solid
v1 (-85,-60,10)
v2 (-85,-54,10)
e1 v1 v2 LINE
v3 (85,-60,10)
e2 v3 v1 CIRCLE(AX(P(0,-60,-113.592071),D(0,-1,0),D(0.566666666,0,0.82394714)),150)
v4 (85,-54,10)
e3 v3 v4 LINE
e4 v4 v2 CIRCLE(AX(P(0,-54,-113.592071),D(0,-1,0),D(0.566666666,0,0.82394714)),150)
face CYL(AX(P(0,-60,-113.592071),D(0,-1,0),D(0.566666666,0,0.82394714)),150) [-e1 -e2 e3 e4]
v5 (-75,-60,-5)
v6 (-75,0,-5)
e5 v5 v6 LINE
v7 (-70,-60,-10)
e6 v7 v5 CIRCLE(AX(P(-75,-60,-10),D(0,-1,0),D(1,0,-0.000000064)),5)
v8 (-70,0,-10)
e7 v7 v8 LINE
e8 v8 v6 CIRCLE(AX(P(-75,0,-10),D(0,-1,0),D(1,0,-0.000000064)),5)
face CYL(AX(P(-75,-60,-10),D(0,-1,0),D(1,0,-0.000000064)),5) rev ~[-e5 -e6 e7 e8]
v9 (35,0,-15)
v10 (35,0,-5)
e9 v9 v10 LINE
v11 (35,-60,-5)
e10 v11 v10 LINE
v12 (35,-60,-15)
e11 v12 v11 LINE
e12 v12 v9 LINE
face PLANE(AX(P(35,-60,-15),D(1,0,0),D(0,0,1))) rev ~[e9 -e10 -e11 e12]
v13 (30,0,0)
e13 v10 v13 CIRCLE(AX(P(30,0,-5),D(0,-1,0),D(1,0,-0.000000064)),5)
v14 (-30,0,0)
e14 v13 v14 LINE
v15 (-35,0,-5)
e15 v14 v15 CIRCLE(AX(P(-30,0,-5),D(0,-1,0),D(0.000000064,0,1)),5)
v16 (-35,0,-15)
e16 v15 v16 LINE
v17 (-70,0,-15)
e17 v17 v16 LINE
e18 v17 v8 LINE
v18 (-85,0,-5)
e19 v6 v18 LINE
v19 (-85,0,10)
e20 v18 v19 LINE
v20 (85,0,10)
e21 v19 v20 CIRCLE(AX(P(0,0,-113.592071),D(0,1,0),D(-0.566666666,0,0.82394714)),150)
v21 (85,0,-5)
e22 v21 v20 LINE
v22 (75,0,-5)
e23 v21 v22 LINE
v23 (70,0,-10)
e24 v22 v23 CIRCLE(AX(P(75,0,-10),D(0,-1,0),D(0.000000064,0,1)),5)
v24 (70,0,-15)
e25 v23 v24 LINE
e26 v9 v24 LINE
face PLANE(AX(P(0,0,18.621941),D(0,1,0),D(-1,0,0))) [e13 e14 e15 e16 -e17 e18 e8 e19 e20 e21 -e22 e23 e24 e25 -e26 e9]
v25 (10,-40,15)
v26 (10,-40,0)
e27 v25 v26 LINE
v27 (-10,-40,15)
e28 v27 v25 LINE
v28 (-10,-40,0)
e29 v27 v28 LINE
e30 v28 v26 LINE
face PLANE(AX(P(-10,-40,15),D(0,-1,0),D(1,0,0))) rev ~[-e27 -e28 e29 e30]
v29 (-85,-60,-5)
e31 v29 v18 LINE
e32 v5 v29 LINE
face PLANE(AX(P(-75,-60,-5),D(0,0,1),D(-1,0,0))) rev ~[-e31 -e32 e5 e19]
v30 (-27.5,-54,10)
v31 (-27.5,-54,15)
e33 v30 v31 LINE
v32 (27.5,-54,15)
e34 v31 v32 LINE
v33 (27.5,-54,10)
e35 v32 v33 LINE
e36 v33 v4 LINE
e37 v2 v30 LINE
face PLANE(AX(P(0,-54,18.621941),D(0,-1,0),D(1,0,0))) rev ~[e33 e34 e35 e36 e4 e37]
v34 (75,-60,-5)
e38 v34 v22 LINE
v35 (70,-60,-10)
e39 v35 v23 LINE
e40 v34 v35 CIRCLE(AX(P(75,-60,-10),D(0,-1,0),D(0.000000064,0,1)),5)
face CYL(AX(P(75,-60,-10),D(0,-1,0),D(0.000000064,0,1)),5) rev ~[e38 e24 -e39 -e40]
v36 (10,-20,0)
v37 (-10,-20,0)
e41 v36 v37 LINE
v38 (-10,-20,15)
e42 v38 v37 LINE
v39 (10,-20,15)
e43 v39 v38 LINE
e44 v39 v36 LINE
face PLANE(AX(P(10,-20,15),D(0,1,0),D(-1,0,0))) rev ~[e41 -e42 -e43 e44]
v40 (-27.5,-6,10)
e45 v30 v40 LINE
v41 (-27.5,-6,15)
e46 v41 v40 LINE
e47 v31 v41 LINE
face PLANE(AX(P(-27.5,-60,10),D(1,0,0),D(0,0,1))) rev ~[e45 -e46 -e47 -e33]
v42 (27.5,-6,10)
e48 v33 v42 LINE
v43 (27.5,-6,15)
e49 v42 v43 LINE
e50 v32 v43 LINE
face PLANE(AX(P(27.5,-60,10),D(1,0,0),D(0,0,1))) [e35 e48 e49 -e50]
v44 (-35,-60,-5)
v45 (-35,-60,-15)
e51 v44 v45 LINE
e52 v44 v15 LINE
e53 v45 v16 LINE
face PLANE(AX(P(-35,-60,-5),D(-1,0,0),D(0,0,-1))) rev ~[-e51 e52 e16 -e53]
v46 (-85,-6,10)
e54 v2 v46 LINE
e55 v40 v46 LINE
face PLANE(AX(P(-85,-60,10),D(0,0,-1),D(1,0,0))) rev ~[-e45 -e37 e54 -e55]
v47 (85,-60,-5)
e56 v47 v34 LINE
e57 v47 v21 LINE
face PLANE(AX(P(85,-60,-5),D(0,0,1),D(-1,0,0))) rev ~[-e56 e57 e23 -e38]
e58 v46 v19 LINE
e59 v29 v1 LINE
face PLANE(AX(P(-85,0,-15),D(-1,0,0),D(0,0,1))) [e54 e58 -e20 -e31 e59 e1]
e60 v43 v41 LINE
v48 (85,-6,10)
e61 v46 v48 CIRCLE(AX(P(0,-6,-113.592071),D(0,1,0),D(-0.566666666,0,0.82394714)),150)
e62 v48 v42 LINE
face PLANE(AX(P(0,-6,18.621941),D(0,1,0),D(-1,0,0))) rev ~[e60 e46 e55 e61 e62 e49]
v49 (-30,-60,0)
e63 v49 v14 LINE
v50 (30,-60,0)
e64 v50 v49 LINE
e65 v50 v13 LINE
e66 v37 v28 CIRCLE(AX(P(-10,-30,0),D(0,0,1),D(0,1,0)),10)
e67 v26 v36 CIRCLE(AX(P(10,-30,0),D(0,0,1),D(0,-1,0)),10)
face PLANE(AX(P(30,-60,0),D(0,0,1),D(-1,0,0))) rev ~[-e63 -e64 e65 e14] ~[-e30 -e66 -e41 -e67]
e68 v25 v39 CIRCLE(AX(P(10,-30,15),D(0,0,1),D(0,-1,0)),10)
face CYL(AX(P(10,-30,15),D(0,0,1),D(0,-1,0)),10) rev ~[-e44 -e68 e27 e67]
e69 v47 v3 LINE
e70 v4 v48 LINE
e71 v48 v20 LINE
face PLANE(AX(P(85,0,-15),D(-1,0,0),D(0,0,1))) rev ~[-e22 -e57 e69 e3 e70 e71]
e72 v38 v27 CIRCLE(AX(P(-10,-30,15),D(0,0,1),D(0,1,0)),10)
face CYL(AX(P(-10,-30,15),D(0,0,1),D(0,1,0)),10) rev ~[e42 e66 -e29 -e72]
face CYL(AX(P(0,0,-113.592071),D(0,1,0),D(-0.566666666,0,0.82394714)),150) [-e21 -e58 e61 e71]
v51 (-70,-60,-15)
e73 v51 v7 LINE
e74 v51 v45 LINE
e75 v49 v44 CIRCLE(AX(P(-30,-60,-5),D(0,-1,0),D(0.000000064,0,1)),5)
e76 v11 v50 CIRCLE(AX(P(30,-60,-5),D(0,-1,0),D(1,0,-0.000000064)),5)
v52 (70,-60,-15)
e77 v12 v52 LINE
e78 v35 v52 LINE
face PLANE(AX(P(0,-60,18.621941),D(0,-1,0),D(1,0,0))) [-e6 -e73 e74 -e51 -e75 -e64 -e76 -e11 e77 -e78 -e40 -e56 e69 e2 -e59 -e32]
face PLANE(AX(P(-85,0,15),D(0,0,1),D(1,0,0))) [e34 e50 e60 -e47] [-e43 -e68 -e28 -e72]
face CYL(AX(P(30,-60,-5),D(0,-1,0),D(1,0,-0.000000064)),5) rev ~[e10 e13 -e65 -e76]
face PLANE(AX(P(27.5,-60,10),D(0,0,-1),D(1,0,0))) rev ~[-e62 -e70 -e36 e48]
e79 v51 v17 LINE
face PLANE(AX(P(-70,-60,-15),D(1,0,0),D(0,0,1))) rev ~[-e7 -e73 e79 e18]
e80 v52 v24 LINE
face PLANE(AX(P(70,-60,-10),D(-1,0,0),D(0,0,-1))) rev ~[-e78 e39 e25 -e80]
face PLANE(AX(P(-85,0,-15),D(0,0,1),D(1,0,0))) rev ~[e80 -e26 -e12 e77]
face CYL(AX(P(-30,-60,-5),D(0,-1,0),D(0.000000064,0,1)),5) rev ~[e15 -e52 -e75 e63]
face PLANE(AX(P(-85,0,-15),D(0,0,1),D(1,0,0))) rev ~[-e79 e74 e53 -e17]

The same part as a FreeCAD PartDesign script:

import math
import FreeCAD as App
import Part
import Sketcher
from FreeCAD import Vector


def add_polygon(sketch, points):
    """Adds a closed chain of lines whose ends are joined by coincident constraints."""
    first, n = sketch.GeometryCount, len(points)
    for a, b in zip(points, points[1:] + points[:1]):
        sketch.addGeometry(Part.LineSegment(App.Vector(*a, 0), App.Vector(*b, 0)), False)
    for i in range(n):
        sketch.addConstraint(Sketcher.Constraint("Coincident", first + i, 2, first + (i + 1) % n, 1))

doc = App.newDocument("Part")
body = doc.addObject("PartDesign::Body", "Body")

sketch1 = body.newObject("Sketcher::SketchObject", "Sketch")
sketch1.AttachmentSupport = (doc.getObject("XZ_Plane"), [""])
sketch1.MapMode = "FlatFace"
add_polygon(sketch1, [(-85, 15), (-85, -15), (85, -15), (85, 15)])
sketch1.addConstraint([
    Sketcher.Constraint("Vertical", 0),
    Sketcher.Constraint("Horizontal", 1),
    Sketcher.Constraint("Vertical", 2),
    Sketcher.Constraint("Horizontal", 3),
    Sketcher.Constraint("Symmetric", 0, 2, 2, 2, -1, 1),
    Sketcher.Constraint("DistanceX", 1, 1, 1, 2, 170.0),
    Sketcher.Constraint("DistanceY", 0, 2, 0, 1, 30.0),
])
pad1 = body.newObject("PartDesign::Pad", "Pad")
pad1.Profile = sketch1
pad1.Length = 60

sketch2 = body.newObject("Sketcher::SketchObject", "Sketch001")
sketch2.AttachmentSupport = (doc.getObject("XZ_Plane"), [""])
sketch2.MapMode = "FlatFace"
sketch2.AttachmentOffset = App.Placement(Vector(0, 0, 60), App.Rotation())
sketch2.addGeometry([
    Part.LineSegment(Vector(30, 0, 0), Vector(-30, 0, 0)),
    Part.ArcOfCircle(Part.Circle(Vector(-30, -5, 0), Vector(0, 0, 1), 5), math.radians(90), math.radians(180)),
    Part.LineSegment(Vector(-35, -5, 0), Vector(-35, -15, 0)),
    Part.LineSegment(Vector(-35, -15, 0), Vector(35, -15, 0)),
    Part.LineSegment(Vector(35, -15, 0), Vector(35, -5, 0)),
    Part.ArcOfCircle(Part.Circle(Vector(30, -5, 0), Vector(0, 0, 1), 5), math.radians(0), math.radians(90)),
], False)
sketch2.addConstraint([
    Sketcher.Constraint("Tangent", 0, 2, 1, 1),
    Sketcher.Constraint("Tangent", 1, 2, 2, 1),
    Sketcher.Constraint("Coincident", 2, 2, 3, 1),
    Sketcher.Constraint("Coincident", 3, 2, 4, 1),
    Sketcher.Constraint("Tangent", 4, 2, 5, 1),
    Sketcher.Constraint("Tangent", 5, 2, 0, 1),
    Sketcher.Constraint("Horizontal", 0),
    Sketcher.Constraint("Vertical", 2),
    Sketcher.Constraint("Horizontal", 3),
    Sketcher.Constraint("Vertical", 4),
    Sketcher.Constraint("Equal", 1, 5),
    Sketcher.Constraint("Symmetric", 0, 2, 5, 2, -1, 1),
    Sketcher.Constraint("Radius", 1, 5.0),
    Sketcher.Constraint("DistanceX", 0, 2, 0, 1, 60.0),
    Sketcher.Constraint("DistanceY", 2, 2, 2, 1, 10.0),
])
pocket1 = body.newObject("PartDesign::Pocket", "Pocket")
pocket1.Profile = sketch2
pocket1.Type = "ThroughAll"

sketch3 = body.newObject("Sketcher::SketchObject", "Sketch002")
sketch3.AttachmentSupport = (doc.getObject("XZ_Plane"), [""])
sketch3.MapMode = "FlatFace"
sketch3.AttachmentOffset = App.Placement(Vector(0, 0, 60), App.Rotation())
sketch3.addGeometry([
    Part.LineSegment(Vector(-85, -15, 0), Vector(-70, -15, 0)),
    Part.LineSegment(Vector(-70, -15, 0), Vector(-70, -10, 0)),
    Part.ArcOfCircle(Part.Circle(Vector(-75, -10, 0), Vector(0, 0, 1), 5), math.radians(0), math.radians(90)),
    Part.LineSegment(Vector(-75, -5, 0), Vector(-85, -5, 0)),
    Part.LineSegment(Vector(-85, -5, 0), Vector(-85, -15, 0)),
    Part.LineSegment(Vector(70, -10, 0), Vector(70, -15, 0)),
    Part.LineSegment(Vector(70, -15, 0), Vector(85, -15, 0)),
    Part.LineSegment(Vector(85, -15, 0), Vector(85, -5, 0)),
    Part.LineSegment(Vector(85, -5, 0), Vector(75, -5, 0)),
    Part.ArcOfCircle(Part.Circle(Vector(75, -10, 0), Vector(0, 0, 1), 5), math.radians(90), math.radians(180)),
], False)
sketch3.addConstraint([
    Sketcher.Constraint("Coincident", 0, 2, 1, 1),
    Sketcher.Constraint("Tangent", 1, 2, 2, 1),
    Sketcher.Constraint("Tangent", 2, 2, 3, 1),
    Sketcher.Constraint("Coincident", 3, 2, 4, 1),
    Sketcher.Constraint("Coincident", 4, 2, 0, 1),
    Sketcher.Constraint("Coincident", 5, 2, 6, 1),
    Sketcher.Constraint("Coincident", 6, 2, 7, 1),
    Sketcher.Constraint("Coincident", 7, 2, 8, 1),
    Sketcher.Constraint("Tangent", 8, 2, 9, 1),
    Sketcher.Constraint("Tangent", 9, 2, 5, 1),
    Sketcher.Constraint("Horizontal", 0),
    Sketcher.Constraint("Vertical", 1),
    Sketcher.Constraint("Horizontal", 3),
    Sketcher.Constraint("Vertical", 4),
    Sketcher.Constraint("Vertical", 5),
    Sketcher.Constraint("Horizontal", 6),
    Sketcher.Constraint("Vertical", 7),
    Sketcher.Constraint("Horizontal", 8),
    Sketcher.Constraint("Equal", 2, 9),
    Sketcher.Constraint("Symmetric", 2, 3, 9, 3, -2),
    Sketcher.Constraint("Symmetric", 4, 2, 6, 2, -2),
    Sketcher.Constraint("Equal", 8, 4),
    Sketcher.Constraint("Radius", 2, 5.0),
    Sketcher.Constraint("DistanceX", 0, 1, 0, 2, 15.0),
    Sketcher.Constraint("DistanceX", 2, 3, -1, 1, 75.0),
    Sketcher.Constraint("DistanceY", 2, 3, -1, 1, 10.0),
])
pocket2 = body.newObject("PartDesign::Pocket", "Pocket001")
pocket2.Profile = sketch3
pocket2.Type = "ThroughAll"

sketch4 = body.newObject("Sketcher::SketchObject", "Sketch003")
sketch4.AttachmentSupport = (doc.getObject("XZ_Plane"), [""])
sketch4.MapMode = "FlatFace"
sketch4.AttachmentOffset = App.Placement(Vector(0, 0, 60), App.Rotation())
add_polygon(sketch4, [(28, 15), (28, 10), (85, 10), (85, 15)])
add_polygon(sketch4, [(-85, 15), (-85, 10), (-28, 10), (-28, 15)])
sketch4.addConstraint([
    Sketcher.Constraint("Vertical", 0),
    Sketcher.Constraint("Horizontal", 1),
    Sketcher.Constraint("Vertical", 2),
    Sketcher.Constraint("Horizontal", 3),
    Sketcher.Constraint("Vertical", 4),
    Sketcher.Constraint("Horizontal", 5),
    Sketcher.Constraint("Vertical", 6),
    Sketcher.Constraint("Horizontal", 7),
    Sketcher.Constraint("Symmetric", 1, 2, 4, 2, -2),
    Sketcher.Constraint("Symmetric", 3, 2, 6, 2, -2),
    Sketcher.Constraint("DistanceY", 0, 2, 0, 1, 5.0),
    Sketcher.Constraint("DistanceX", 1, 1, 1, 2, 57.5),
    Sketcher.Constraint("DistanceY", -1, 1, 0, 2, 10.0),
    Sketcher.Constraint("DistanceX", -1, 1, 1, 2, 85.0),
])
pocket3 = body.newObject("PartDesign::Pocket", "Pocket002")
pocket3.Profile = sketch4
pocket3.Type = "ThroughAll"

sketch5 = body.newObject("Sketcher::SketchObject", "Sketch004")
sketch5.AttachmentSupport = (doc.getObject("XZ_Plane"), [""])
sketch5.MapMode = "FlatFace"
sketch5.AttachmentOffset = App.Placement(Vector(0, 0, 60), App.Rotation())
add_polygon(sketch5, [(28, 15), (28, 10), (85, 10), (85, 15)])
add_polygon(sketch5, [(-85, 15), (-85, 10), (-28, 10), (-28, 15)])
sketch5.addConstraint([
    Sketcher.Constraint("Vertical", 0),
    Sketcher.Constraint("Horizontal", 1),
    Sketcher.Constraint("Vertical", 2),
    Sketcher.Constraint("Horizontal", 3),
    Sketcher.Constraint("Vertical", 4),
    Sketcher.Constraint("Horizontal", 5),
    Sketcher.Constraint("Vertical", 6),
    Sketcher.Constraint("Horizontal", 7),
    Sketcher.Constraint("Symmetric", 1, 2, 4, 2, -2),
    Sketcher.Constraint("Symmetric", 3, 2, 6, 2, -2),
    Sketcher.Constraint("DistanceY", 0, 2, 0, 1, 5.0),
    Sketcher.Constraint("DistanceX", 1, 1, 1, 2, 57.5),
    Sketcher.Constraint("DistanceY", -1, 1, 0, 2, 10.0),
    Sketcher.Constraint("DistanceX", -1, 1, 1, 2, 85.0),
])
pocket4 = body.newObject("PartDesign::Pocket", "Pocket003")
pocket4.Profile = sketch5
pocket4.Type = "ThroughAll"

sketch6 = body.newObject("Sketcher::SketchObject", "Sketch005")
sketch6.AttachmentSupport = (doc.getObject("XZ_Plane"), [""])
sketch6.MapMode = "FlatFace"
sketch6.AttachmentOffset = App.Placement(Vector(0, 0, 60), App.Rotation())
sketch6.addGeometry([
    Part.LineSegment(Vector(28, 10, 0), Vector(85, 10, 0)),
    Part.ArcOfCircle(Part.Circle(Vector(0, -114, 0), Vector(0, 0, 1), 150), math.radians(55), math.radians(125)),
    Part.LineSegment(Vector(-85, 10, 0), Vector(-28, 10, 0)),
    Part.LineSegment(Vector(-28, 10, 0), Vector(-28, 15, 0)),
    Part.LineSegment(Vector(-28, 15, 0), Vector(28, 15, 0)),
    Part.LineSegment(Vector(28, 15, 0), Vector(28, 10, 0)),
], False)
sketch6.addConstraint([
    Sketcher.Constraint("Coincident", 0, 2, 1, 1),
    Sketcher.Constraint("Coincident", 1, 2, 2, 1),
    Sketcher.Constraint("Coincident", 2, 2, 3, 1),
    Sketcher.Constraint("Coincident", 3, 2, 4, 1),
    Sketcher.Constraint("Coincident", 4, 2, 5, 1),
    Sketcher.Constraint("Coincident", 5, 2, 0, 1),
    Sketcher.Constraint("Horizontal", 0),
    Sketcher.Constraint("Horizontal", 2),
    Sketcher.Constraint("Vertical", 3),
    Sketcher.Constraint("Horizontal", 4),
    Sketcher.Constraint("Vertical", 5),
    Sketcher.Constraint("Symmetric", 0, 2, 1, 2, -2),
    Sketcher.Constraint("Equal", 0, 2),
    Sketcher.Constraint("Radius", 1, 150.0),
    Sketcher.Constraint("DistanceX", 4, 1, 4, 2, 55.0),
    Sketcher.Constraint("DistanceY", 3, 1, 3, 2, 5.0),
    Sketcher.Constraint("DistanceX", 0, 1, 0, 2, 57.5),
    Sketcher.Constraint("DistanceY", -1, 1, 0, 2, 10.0),
])
pad2 = body.newObject("PartDesign::Pad", "Pad001")
pad2.Profile = sketch6
pad2.Length = 6
pad2.Reversed = True

sketch7 = body.newObject("Sketcher::SketchObject", "Sketch006")
sketch7.AttachmentSupport = (doc.getObject("XZ_Plane"), [""])
sketch7.MapMode = "FlatFace"
sketch7.addGeometry([
    Part.LineSegment(Vector(-28, 10, 0), Vector(-85, 10, 0)),
    Part.ArcOfCircle(Part.Circle(Vector(0, -114, 0), Vector(0, 0, 1), 150), math.radians(55), math.radians(125)),
    Part.LineSegment(Vector(85, 10, 0), Vector(28, 10, 0)),
    Part.LineSegment(Vector(28, 10, 0), Vector(28, 15, 0)),
    Part.LineSegment(Vector(28, 15, 0), Vector(-28, 15, 0)),
    Part.LineSegment(Vector(-28, 15, 0), Vector(-28, 10, 0)),
], False)
sketch7.addConstraint([
    Sketcher.Constraint("Coincident", 0, 2, 1, 2),
    Sketcher.Constraint("Coincident", 1, 1, 2, 1),
    Sketcher.Constraint("Coincident", 2, 2, 3, 1),
    Sketcher.Constraint("Coincident", 3, 2, 4, 1),
    Sketcher.Constraint("Coincident", 4, 2, 5, 1),
    Sketcher.Constraint("Coincident", 5, 2, 0, 1),
    Sketcher.Constraint("Horizontal", 0),
    Sketcher.Constraint("Horizontal", 2),
    Sketcher.Constraint("Vertical", 3),
    Sketcher.Constraint("Horizontal", 4),
    Sketcher.Constraint("Vertical", 5),
    Sketcher.Constraint("Symmetric", 0, 2, 1, 1, -2),
    Sketcher.Constraint("Equal", 0, 2),
    Sketcher.Constraint("Radius", 1, 150.0),
    Sketcher.Constraint("DistanceX", 4, 2, 4, 1, 55.0),
    Sketcher.Constraint("DistanceY", 3, 1, 3, 2, 5.0),
    Sketcher.Constraint("DistanceX", 0, 2, 0, 1, 57.5),
    Sketcher.Constraint("DistanceY", -1, 1, 0, 2, 10.0),
])
pad3 = body.newObject("PartDesign::Pad", "Pad002")
pad3.Profile = sketch7
pad3.Length = 6

sketch8 = body.newObject("Sketcher::SketchObject", "Sketch007")
sketch8.AttachmentSupport = (doc.getObject("XY_Plane"), [""])
sketch8.MapMode = "FlatFace"
sketch8.AttachmentOffset = App.Placement(Vector(0, 0, 15), App.Rotation())
sketch8.addGeometry([
    Part.LineSegment(Vector(10, -20, 0), Vector(-10, -20, 0)),
    Part.ArcOfCircle(Part.Circle(Vector(-10, -30, 0), Vector(0, 0, 1), 10), math.radians(90), math.radians(270)),
    Part.LineSegment(Vector(-10, -40, 0), Vector(10, -40, 0)),
    Part.ArcOfCircle(Part.Circle(Vector(10, -30, 0), Vector(0, 0, 1), 10), math.radians(-90), math.radians(90)),
], False)
sketch8.addConstraint([
    Sketcher.Constraint("Tangent", 0, 2, 1, 1),
    Sketcher.Constraint("Tangent", 1, 2, 2, 1),
    Sketcher.Constraint("Tangent", 2, 2, 3, 1),
    Sketcher.Constraint("Tangent", 3, 2, 0, 1),
    Sketcher.Constraint("Horizontal", 0),
    Sketcher.Constraint("Horizontal", 2),
    Sketcher.Constraint("Radius", 1, 10.0),
    Sketcher.Constraint("DistanceX", 0, 2, 0, 1, 20.0),
    Sketcher.Constraint("DistanceX", 1, 3, -1, 1, 10.0),
    Sketcher.Constraint("DistanceY", 1, 3, -1, 1, 30.0),
])
pocket5 = body.newObject("PartDesign::Pocket", "Pocket004")
pocket5.Profile = sketch8
pocket5.Type = "ThroughAll"

doc.recompute()
